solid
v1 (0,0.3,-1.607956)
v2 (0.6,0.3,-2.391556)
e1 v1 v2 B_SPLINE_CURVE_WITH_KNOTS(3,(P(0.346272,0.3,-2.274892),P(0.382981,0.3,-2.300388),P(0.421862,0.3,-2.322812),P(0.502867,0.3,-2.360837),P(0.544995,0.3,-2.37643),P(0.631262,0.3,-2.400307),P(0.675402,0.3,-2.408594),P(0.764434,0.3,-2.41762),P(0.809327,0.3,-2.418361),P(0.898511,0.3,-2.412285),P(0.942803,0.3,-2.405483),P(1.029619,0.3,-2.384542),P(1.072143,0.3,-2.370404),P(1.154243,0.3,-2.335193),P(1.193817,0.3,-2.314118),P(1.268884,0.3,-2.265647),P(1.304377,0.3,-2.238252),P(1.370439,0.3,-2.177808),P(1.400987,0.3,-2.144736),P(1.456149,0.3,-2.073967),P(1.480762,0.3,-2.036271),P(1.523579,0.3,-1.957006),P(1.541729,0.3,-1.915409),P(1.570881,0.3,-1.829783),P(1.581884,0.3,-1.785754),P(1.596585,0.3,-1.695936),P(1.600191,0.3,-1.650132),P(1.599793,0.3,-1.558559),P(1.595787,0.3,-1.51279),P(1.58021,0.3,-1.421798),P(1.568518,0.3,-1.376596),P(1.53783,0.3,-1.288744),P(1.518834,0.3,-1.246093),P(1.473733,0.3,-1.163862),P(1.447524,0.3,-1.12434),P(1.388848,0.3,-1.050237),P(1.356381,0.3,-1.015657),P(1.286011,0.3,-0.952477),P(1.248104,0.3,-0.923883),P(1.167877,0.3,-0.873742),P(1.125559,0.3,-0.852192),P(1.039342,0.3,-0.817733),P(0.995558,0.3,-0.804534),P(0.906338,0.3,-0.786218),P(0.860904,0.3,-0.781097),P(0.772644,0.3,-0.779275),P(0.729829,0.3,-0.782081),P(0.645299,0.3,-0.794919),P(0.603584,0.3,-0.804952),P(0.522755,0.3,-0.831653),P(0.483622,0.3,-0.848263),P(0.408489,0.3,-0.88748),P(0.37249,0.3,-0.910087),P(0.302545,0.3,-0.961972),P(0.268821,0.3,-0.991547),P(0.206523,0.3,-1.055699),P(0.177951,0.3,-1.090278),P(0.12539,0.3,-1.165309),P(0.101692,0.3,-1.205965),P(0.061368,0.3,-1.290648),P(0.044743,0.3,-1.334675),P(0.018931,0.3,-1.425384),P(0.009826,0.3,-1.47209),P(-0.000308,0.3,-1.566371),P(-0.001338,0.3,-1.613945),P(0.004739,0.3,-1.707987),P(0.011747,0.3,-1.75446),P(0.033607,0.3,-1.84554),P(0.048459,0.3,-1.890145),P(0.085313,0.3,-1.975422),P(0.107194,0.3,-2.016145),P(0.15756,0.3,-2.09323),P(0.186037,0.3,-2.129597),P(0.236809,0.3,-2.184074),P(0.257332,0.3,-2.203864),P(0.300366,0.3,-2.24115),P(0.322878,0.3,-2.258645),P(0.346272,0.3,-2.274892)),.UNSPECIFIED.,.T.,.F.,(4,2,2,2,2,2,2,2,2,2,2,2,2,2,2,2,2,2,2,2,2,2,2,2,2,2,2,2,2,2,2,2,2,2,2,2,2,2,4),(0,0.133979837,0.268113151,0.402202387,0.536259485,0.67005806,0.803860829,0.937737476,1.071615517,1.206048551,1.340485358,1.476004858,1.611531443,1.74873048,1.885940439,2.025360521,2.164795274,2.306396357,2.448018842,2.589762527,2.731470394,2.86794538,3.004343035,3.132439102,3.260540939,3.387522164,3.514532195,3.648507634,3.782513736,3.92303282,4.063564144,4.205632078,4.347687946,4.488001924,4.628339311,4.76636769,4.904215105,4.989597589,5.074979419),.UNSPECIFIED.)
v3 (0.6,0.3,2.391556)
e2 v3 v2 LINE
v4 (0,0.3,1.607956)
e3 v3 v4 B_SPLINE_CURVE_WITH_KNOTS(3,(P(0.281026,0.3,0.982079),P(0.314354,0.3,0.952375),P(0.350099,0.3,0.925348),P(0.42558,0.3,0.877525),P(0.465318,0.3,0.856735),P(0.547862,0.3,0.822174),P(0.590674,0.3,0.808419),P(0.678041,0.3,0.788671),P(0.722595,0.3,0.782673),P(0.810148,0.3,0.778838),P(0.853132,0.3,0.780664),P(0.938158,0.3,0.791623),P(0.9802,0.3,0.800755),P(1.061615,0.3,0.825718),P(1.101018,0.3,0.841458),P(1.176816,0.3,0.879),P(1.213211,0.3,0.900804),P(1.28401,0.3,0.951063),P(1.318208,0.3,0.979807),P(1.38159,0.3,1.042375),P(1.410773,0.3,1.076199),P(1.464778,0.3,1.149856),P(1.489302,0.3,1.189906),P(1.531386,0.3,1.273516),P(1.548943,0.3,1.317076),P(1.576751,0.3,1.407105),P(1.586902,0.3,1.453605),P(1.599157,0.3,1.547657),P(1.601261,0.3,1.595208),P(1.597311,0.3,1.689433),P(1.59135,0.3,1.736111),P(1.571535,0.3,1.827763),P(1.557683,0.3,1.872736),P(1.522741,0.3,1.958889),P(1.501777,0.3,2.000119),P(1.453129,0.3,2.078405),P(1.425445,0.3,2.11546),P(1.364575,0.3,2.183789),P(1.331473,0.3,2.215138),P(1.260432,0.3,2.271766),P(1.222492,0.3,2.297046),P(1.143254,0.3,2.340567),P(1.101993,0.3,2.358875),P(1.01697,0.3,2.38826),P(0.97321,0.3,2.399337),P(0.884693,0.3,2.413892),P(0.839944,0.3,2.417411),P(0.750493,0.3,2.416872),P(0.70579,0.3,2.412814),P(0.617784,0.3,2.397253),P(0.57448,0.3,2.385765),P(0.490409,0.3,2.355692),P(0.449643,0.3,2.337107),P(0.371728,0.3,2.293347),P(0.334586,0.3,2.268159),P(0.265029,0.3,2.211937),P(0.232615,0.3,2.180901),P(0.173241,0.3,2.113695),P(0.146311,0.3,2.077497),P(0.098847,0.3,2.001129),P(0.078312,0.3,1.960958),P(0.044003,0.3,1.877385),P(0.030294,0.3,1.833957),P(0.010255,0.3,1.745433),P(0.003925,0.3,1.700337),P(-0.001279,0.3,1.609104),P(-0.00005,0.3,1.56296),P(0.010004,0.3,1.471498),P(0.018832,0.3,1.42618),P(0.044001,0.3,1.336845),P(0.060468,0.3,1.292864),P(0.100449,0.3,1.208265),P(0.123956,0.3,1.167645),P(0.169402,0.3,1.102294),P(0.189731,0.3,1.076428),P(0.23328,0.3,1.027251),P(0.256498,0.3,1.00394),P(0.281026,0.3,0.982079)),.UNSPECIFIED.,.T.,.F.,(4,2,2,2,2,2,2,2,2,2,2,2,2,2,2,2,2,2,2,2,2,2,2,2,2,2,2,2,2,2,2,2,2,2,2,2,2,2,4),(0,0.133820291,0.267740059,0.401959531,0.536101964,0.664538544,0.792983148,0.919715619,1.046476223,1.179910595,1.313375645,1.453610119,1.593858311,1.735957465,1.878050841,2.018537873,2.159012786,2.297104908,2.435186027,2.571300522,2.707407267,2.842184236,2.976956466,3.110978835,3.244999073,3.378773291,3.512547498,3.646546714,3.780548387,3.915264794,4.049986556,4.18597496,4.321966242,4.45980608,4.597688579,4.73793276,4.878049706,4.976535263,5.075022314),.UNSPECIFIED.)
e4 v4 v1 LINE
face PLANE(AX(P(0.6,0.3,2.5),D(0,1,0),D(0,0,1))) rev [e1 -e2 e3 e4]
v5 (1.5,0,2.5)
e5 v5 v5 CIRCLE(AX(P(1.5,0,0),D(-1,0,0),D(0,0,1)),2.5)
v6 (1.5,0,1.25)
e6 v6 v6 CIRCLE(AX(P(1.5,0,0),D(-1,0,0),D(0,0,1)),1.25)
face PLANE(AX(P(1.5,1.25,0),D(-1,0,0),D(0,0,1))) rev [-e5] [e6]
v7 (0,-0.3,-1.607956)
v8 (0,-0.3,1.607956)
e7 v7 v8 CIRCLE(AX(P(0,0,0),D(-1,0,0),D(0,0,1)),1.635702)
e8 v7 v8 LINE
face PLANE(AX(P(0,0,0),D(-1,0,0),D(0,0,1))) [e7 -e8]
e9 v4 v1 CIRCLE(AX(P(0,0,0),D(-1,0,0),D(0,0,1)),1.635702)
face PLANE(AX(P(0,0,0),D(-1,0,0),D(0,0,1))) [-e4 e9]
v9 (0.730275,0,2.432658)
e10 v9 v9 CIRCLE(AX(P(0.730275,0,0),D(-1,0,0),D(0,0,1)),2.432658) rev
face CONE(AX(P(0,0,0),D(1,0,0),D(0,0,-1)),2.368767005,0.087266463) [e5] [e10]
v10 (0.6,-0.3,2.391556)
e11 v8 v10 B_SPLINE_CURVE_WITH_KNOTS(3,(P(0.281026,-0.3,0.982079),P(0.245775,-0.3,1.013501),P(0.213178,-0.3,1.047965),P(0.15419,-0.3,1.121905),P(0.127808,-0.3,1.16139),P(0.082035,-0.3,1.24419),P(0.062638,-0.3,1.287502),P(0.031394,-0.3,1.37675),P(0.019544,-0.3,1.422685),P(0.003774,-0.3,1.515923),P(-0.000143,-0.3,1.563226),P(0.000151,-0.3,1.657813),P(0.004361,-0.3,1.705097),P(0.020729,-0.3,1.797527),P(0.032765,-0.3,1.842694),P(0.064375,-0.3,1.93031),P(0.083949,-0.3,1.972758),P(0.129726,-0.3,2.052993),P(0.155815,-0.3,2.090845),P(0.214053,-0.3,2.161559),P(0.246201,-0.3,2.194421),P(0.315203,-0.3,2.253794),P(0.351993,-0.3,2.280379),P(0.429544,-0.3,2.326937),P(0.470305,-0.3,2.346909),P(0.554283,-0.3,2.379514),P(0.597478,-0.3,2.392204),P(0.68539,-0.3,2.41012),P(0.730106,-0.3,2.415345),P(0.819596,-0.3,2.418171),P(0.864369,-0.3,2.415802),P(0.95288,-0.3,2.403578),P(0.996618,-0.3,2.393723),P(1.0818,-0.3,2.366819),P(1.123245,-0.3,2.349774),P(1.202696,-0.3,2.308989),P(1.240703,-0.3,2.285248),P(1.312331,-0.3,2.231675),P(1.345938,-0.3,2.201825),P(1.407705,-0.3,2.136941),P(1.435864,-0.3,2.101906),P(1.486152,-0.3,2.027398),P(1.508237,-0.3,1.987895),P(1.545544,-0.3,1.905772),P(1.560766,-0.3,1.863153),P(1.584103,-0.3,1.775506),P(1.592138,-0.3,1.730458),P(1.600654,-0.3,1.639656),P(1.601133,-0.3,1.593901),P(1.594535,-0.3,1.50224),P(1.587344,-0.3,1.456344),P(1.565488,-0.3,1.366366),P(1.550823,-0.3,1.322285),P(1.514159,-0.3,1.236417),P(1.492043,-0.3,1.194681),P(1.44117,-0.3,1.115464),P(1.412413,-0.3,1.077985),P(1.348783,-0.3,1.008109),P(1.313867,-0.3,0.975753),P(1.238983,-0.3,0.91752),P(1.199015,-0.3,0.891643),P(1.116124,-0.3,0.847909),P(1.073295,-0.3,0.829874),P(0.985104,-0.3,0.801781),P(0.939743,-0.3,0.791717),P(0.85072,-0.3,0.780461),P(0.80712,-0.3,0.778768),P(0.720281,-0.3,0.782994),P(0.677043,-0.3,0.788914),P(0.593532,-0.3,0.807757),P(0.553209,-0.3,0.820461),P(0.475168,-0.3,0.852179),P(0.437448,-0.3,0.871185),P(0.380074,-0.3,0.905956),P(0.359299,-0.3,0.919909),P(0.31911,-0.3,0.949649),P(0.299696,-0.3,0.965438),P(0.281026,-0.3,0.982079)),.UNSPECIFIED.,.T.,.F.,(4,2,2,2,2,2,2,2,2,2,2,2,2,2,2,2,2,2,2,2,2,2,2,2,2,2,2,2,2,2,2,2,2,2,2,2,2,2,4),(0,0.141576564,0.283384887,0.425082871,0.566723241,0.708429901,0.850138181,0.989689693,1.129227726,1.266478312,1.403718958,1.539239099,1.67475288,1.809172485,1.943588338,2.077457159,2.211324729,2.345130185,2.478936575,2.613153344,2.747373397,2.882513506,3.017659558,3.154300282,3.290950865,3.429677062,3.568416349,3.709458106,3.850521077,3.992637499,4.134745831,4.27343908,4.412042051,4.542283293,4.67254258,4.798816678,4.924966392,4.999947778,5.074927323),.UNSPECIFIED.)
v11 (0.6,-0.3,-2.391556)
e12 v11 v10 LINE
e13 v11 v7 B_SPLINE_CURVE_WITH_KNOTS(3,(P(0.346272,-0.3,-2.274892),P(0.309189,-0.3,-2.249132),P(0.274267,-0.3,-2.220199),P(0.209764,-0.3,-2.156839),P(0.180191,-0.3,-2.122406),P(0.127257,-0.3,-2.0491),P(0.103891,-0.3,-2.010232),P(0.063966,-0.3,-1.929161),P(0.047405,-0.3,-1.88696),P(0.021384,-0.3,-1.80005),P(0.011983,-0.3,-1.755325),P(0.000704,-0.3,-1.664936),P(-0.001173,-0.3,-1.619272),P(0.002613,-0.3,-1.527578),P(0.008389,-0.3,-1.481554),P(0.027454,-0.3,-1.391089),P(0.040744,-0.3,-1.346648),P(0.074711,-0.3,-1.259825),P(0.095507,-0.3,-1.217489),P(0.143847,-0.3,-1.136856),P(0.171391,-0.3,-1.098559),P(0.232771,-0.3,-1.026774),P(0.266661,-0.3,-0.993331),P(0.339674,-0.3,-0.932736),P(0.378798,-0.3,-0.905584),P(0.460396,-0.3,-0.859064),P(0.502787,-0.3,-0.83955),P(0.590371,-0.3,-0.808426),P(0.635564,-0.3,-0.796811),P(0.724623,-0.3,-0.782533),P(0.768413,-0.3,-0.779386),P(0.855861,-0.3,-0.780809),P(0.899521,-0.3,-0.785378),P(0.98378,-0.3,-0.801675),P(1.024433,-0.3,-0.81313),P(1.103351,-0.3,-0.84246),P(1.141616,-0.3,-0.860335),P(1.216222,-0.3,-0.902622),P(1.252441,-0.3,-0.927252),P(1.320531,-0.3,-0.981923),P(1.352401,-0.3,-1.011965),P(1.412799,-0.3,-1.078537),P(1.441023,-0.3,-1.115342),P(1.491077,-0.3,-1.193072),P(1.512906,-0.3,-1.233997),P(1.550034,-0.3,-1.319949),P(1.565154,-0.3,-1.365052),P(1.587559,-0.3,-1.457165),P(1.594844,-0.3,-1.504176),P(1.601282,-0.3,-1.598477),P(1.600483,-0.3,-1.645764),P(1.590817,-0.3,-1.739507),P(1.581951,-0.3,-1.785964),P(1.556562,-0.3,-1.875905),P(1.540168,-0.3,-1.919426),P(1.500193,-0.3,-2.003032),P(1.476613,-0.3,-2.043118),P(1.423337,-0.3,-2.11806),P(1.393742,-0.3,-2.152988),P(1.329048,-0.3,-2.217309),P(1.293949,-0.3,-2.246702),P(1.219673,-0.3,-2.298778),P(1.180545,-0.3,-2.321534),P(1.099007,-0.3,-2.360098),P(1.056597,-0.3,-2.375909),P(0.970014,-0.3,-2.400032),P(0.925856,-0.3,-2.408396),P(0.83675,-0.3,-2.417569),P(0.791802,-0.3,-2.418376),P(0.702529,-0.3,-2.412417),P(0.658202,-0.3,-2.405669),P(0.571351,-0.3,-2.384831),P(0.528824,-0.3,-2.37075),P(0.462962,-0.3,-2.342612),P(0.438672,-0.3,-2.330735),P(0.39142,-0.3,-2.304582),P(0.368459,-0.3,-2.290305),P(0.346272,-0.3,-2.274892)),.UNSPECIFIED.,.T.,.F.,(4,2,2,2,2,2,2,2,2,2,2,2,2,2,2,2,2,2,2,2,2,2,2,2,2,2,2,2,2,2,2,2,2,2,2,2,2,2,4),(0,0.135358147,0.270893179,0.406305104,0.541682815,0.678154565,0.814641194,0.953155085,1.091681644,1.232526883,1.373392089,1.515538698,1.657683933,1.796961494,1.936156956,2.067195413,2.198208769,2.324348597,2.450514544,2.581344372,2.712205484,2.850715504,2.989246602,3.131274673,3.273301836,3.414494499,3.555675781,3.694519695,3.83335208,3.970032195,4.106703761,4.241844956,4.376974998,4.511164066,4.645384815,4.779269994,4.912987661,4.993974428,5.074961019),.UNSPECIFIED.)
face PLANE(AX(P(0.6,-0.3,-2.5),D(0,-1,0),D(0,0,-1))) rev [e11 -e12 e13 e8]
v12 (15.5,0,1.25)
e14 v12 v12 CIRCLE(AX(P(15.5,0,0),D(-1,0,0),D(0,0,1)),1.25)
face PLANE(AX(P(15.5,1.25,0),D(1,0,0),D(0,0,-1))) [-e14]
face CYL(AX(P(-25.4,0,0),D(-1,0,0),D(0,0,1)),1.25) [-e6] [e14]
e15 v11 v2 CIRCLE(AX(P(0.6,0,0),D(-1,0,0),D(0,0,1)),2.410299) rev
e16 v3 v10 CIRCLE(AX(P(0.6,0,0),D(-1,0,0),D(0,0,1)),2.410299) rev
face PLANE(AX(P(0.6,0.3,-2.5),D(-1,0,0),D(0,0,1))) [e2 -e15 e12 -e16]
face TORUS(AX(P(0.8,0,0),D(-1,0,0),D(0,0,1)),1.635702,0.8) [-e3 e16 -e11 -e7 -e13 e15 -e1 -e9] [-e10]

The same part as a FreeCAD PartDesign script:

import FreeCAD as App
import Part
import Sketcher
Q = App.Units.Quantity


def edges_at(feature, points):
    """Names of the edges that pass closest to the given points."""
    edges = feature.Shape.Edges
    near = lambda p: min(range(len(edges)), key=lambda i: edges[i].distToShape(Part.Vertex(*p))[0])
    return sorted({f"Edge{near(p) + 1}" for p in points})

doc = App.newDocument("Part")
body = doc.addObject("PartDesign::Body", "Body")

# Sketch on XY plane
sketch1 = body.newObject("Sketcher::SketchObject", "Sketch")
sketch1.AttachmentSupport = (doc.getObject("XY_Plane"), [""])
sketch1.MapMode = "FlatFace"
sketch1.addGeometry(Part.LineSegment(App.Vector(1.5, 1.2, 0), App.Vector(1.5, 2.5, 0)), False)
sketch1.addGeometry(Part.LineSegment(App.Vector(1.5, 2.5, 0), App.Vector(0, 2.4, 0)), False)
sketch1.addGeometry(Part.LineSegment(App.Vector(0, 2.4, 0), App.Vector(0, 0, 0)), False)
sketch1.addGeometry(Part.LineSegment(App.Vector(0, 0, 0), App.Vector(15.5, 0, 0)), False)
sketch1.addGeometry(Part.LineSegment(App.Vector(15.5, 0, 0), App.Vector(15.5, 1.2, 0)), False)
sketch1.addGeometry(Part.LineSegment(App.Vector(15.5, 1.2, 0), App.Vector(1.5, 1.2, 0)), False)
sketch1.addConstraint(Sketcher.Constraint("Coincident", 0, 2, 1, 1))
sketch1.addConstraint(Sketcher.Constraint("Coincident", 1, 2, 2, 1))
sketch1.addConstraint(Sketcher.Constraint("Coincident", 2, 2, 3, 1))
sketch1.addConstraint(Sketcher.Constraint("Coincident", 3, 2, 4, 1))
sketch1.addConstraint(Sketcher.Constraint("Coincident", 4, 2, 5, 1))
sketch1.addConstraint(Sketcher.Constraint("Coincident", 5, 2, 0, 1))
sketch1.addConstraint(Sketcher.Constraint("Vertical", 0))
sketch1.addConstraint(Sketcher.Constraint("Vertical", 2))
sketch1.addConstraint(Sketcher.Constraint("Horizontal", 3))
sketch1.addConstraint(Sketcher.Constraint("Vertical", 4))
sketch1.addConstraint(Sketcher.Constraint("Horizontal", 5))
sketch1.addConstraint(Sketcher.Constraint("Coincident", 2, 2, -1, 1))
sketch1.addConstraint(Sketcher.Constraint("Equal", 0, 4))
sketch1.addConstraint(Sketcher.Constraint("DistanceX", 5, 2, 5, 1, Q("14 mm")))
sketch1.addConstraint(Sketcher.Constraint("Angle", 1, Q("-175 deg")))
sketch1.addConstraint(Sketcher.Constraint("DistanceX", 3, 1, 3, 2, Q("15.5 mm")))
sketch1.addConstraint(Sketcher.Constraint("DistanceY", 0, 1, 0, 2, Q("1.25 mm")))
revolution = body.newObject("PartDesign::Revolution", "Revolution")
revolution.Profile = sketch1
revolution.ReferenceAxis = (sketch1, ["H_Axis"])
revolution.Angle = 360
doc.recompute()

fillet = body.newObject("PartDesign::Fillet", "Fillet")
fillet.Base = (revolution, edges_at(revolution, [(0, -2.369, 0)]))
fillet.Radius = 0.8

# Sketch on YZ plane
sketch2 = body.newObject("Sketcher::SketchObject", "Sketch001")
sketch2.AttachmentSupport = (doc.getObject("YZ_Plane"), [""])
sketch2.MapMode = "FlatFace"
sketch2.addGeometry(Part.LineSegment(App.Vector(0.3, 2.5, 0), App.Vector(-0.3, 2.5, 0)), False)
sketch2.addGeometry(Part.LineSegment(App.Vector(-0.3, 2.5, 0), App.Vector(-0.3, -2.5, 0)), False)
sketch2.addGeometry(Part.LineSegment(App.Vector(-0.3, -2.5, 0), App.Vector(0.3, -2.5, 0)), False)
sketch2.addGeometry(Part.LineSegment(App.Vector(0.3, -2.5, 0), App.Vector(0.3, 2.5, 0)), False)
sketch2.addConstraint(Sketcher.Constraint("Coincident", 0, 2, 1, 1))
sketch2.addConstraint(Sketcher.Constraint("Coincident", 1, 2, 2, 1))
sketch2.addConstraint(Sketcher.Constraint("Coincident", 2, 2, 3, 1))
sketch2.addConstraint(Sketcher.Constraint("Coincident", 3, 2, 0, 1))
sketch2.addConstraint(Sketcher.Constraint("Horizontal", 0))
sketch2.addConstraint(Sketcher.Constraint("Vertical", 1))
sketch2.addConstraint(Sketcher.Constraint("Horizontal", 2))
sketch2.addConstraint(Sketcher.Constraint("Vertical", 3))
sketch2.addConstraint(Sketcher.Constraint("Symmetric", 0, 2, 2, 2, -1, 1))
sketch2.addConstraint(Sketcher.Constraint("DistanceY", 1, 2, 1, 1, Q("5 mm")))
sketch2.addConstraint(Sketcher.Constraint("DistanceX", 0, 2, 0, 1, Q("0.6 mm")))
pocket1 = body.newObject("PartDesign::Pocket", "Pocket")
pocket1.Profile = sketch2
pocket1.Length = 0.6
pocket1.Reversed = True

doc.recompute()
